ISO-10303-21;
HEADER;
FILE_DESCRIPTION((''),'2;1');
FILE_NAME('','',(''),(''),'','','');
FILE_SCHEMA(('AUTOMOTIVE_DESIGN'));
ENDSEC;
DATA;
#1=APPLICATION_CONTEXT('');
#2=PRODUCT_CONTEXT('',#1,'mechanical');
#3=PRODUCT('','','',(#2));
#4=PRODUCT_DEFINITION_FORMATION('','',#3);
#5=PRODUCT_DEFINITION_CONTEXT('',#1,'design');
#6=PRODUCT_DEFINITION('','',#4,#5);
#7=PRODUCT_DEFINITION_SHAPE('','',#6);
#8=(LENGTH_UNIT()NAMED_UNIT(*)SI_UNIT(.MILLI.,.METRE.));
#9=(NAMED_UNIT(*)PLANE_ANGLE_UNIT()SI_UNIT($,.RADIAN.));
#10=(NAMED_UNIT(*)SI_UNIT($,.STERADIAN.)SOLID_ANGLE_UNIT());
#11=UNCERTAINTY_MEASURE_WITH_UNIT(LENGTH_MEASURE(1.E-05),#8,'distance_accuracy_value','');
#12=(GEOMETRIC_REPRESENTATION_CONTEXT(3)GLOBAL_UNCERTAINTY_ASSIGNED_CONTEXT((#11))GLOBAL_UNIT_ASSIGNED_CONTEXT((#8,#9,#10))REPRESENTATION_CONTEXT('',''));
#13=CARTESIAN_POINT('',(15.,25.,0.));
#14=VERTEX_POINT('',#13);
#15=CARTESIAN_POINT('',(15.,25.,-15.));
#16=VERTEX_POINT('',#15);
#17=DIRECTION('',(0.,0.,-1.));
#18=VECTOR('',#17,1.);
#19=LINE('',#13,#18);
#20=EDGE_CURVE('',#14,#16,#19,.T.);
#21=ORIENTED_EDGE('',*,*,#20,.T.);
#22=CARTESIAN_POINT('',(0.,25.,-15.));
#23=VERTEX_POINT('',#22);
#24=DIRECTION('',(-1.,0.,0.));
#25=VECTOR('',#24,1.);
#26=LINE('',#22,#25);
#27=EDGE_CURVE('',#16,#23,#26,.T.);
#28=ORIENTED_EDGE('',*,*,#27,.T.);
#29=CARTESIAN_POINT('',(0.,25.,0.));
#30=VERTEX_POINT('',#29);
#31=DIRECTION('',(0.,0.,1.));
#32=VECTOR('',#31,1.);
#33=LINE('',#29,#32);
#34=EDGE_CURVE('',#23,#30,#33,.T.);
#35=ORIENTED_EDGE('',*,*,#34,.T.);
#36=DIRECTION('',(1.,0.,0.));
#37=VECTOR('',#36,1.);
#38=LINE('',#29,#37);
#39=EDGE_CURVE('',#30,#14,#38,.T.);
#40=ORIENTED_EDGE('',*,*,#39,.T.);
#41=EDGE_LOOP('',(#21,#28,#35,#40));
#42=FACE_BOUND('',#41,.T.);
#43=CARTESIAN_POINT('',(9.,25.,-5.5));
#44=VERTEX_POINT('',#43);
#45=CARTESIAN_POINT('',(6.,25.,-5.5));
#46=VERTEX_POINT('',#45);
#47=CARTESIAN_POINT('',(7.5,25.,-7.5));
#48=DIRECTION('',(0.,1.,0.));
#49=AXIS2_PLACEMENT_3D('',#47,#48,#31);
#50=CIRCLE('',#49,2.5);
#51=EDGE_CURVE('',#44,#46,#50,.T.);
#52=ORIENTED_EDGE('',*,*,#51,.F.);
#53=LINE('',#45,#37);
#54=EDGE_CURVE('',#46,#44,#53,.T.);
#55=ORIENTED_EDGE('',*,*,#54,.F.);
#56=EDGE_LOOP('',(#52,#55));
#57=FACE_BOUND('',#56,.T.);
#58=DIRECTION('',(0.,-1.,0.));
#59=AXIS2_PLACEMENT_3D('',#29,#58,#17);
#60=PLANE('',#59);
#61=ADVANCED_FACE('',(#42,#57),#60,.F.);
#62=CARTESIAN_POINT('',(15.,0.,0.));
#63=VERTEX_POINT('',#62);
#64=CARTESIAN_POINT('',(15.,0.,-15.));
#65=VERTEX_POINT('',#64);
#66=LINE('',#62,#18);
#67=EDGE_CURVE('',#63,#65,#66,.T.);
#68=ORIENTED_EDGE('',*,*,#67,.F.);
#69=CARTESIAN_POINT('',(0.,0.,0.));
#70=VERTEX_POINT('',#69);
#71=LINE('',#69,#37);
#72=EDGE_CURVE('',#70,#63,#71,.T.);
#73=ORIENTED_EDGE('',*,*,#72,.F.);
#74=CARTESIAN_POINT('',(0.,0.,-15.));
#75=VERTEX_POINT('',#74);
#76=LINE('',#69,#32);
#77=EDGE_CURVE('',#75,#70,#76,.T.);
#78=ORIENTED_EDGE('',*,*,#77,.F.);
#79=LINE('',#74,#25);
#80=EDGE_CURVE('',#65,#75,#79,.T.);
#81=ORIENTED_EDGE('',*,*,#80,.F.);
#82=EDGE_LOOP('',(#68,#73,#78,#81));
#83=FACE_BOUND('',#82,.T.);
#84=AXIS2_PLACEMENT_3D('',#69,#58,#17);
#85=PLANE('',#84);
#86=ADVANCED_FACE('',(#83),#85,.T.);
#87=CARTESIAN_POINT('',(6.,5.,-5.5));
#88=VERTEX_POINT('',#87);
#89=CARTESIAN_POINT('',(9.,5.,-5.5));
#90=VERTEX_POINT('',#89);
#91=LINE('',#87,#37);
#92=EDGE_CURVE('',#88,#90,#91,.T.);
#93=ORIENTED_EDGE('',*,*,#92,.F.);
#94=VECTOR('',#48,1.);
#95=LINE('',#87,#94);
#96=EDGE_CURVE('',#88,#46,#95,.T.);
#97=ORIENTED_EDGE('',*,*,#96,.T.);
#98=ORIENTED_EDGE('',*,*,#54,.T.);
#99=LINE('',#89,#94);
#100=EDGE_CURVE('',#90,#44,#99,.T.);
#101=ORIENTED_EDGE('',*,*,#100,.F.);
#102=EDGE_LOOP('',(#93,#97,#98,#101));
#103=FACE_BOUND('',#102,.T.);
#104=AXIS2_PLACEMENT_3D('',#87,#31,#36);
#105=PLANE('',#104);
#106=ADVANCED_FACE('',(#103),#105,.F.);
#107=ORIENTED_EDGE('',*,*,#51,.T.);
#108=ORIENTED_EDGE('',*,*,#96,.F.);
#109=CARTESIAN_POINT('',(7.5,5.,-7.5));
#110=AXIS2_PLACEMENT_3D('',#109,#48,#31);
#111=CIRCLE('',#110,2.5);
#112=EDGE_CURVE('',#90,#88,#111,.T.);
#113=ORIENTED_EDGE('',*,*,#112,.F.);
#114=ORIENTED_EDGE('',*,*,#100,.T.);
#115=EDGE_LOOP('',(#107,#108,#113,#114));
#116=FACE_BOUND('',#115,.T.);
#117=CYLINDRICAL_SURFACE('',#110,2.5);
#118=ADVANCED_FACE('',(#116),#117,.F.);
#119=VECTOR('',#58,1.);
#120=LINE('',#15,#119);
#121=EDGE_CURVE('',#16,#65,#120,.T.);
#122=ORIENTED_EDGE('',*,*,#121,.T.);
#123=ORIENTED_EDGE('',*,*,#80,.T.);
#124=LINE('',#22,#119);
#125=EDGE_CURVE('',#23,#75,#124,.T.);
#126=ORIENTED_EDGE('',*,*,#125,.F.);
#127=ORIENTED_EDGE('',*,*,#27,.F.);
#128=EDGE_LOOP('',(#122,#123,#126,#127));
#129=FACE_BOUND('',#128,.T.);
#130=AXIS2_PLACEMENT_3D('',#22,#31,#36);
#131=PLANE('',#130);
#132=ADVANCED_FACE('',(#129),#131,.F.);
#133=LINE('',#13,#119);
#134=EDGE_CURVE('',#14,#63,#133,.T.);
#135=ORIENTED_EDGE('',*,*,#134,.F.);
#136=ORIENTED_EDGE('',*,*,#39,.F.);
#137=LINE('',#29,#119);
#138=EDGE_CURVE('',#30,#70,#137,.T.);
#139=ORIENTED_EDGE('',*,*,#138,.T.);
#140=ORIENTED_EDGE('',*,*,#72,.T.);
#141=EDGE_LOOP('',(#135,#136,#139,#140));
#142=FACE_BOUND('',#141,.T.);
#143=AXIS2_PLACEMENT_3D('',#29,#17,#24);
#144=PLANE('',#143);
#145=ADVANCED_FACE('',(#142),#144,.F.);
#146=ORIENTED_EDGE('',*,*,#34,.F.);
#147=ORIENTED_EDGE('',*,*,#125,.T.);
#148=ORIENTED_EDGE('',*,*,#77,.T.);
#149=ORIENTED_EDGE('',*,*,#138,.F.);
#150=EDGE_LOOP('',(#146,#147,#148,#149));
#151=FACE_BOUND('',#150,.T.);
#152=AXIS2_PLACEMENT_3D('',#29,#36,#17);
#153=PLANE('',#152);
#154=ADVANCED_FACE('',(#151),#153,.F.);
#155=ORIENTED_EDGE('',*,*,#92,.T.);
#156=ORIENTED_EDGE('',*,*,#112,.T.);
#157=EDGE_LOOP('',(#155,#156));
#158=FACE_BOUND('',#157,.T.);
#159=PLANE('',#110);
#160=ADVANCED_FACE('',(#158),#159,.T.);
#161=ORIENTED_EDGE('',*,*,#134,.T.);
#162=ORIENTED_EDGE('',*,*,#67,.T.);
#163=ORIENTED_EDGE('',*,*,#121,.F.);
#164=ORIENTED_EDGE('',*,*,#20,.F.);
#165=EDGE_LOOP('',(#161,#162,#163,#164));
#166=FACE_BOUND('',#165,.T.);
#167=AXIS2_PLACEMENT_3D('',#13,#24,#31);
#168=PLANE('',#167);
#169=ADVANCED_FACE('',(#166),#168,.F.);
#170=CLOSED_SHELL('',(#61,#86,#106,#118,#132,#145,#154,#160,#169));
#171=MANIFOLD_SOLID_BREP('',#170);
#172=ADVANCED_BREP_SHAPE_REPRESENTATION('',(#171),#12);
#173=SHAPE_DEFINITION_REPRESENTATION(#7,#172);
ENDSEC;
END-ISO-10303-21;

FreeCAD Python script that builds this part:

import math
import FreeCAD as App
import Part
import Sketcher

doc = App.newDocument("Part")
body = doc.addObject("PartDesign::Body", "Body")

# Sketch on XZ plane
sketch1 = body.newObject("Sketcher::SketchObject", "Sketch")
sketch1.AttachmentSupport = (doc.getObject("XZ_Plane"), [""])
sketch1.MapMode = "FlatFace"
sketch1.addGeometry(Part.LineSegment(App.Vector(0, -15, 0), App.Vector(0, 0, 0)), False)
sketch1.addGeometry(Part.LineSegment(App.Vector(0, 0, 0), App.Vector(15, 0, 0)), False)
sketch1.addGeometry(Part.LineSegment(App.Vector(15, 0, 0), App.Vector(15, -15, 0)), False)
sketch1.addGeometry(Part.LineSegment(App.Vector(15, -15, 0), App.Vector(0, -15, 0)), False)
sketch1.addConstraint(Sketcher.Constraint("Coincident", 0, 2, 1, 1))
sketch1.addConstraint(Sketcher.Constraint("Coincident", 1, 2, 2, 1))
sketch1.addConstraint(Sketcher.Constraint("Coincident", 2, 2, 3, 1))
sketch1.addConstraint(Sketcher.Constraint("Coincident", 3, 2, 0, 1))
sketch1.addConstraint(Sketcher.Constraint("Vertical", 0))
sketch1.addConstraint(Sketcher.Constraint("Horizontal", 1))
sketch1.addConstraint(Sketcher.Constraint("Vertical", 2))
sketch1.addConstraint(Sketcher.Constraint("Horizontal", 3))
sketch1.addConstraint(Sketcher.Constraint("Coincident", 0, 2, -1, 1))
sketch1.addConstraint(Sketcher.Constraint("Equal", 3, 0))
sketch1.addConstraint(Sketcher.Constraint("DistanceX", 1, 1, 1, 2, 15.0))
pad1 = body.newObject("PartDesign::Pad", "Pad")
pad1.Profile = sketch1
pad1.Length = 25
pad1.Reversed = True

# Sketch on XZ plane
sketch2 = body.newObject("Sketcher::SketchObject", "Sketch001")
sketch2.AttachmentSupport = (doc.getObject("XZ_Plane"), [""])
sketch2.MapMode = "FlatFace"
sketch2.AttachmentOffset = App.Placement(App.Vector(0, 0, -25), App.Rotation())
sketch2.addGeometry(Part.LineSegment(App.Vector(6, -5.5, 0), App.Vector(9, -5.5, 0)), False)
sketch2.addGeometry(Part.ArcOfCircle(Part.Circle(App.Vector(7.5, -7.5, 0), App.Vector(0, 0, 1), 2.5), math.radians(127), math.radians(413)), False)
sketch2.addConstraint(Sketcher.Constraint("Coincident", 0, 1, 1, 1))
sketch2.addConstraint(Sketcher.Constraint("Coincident", 1, 2, 0, 2))
sketch2.addConstraint(Sketcher.Constraint("Horizontal", 0))
sketch2.addConstraint(Sketcher.Constraint("Radius", 1, 2.5))
sketch2.addConstraint(Sketcher.Constraint("DistanceX", 0, 1, 0, 2, 3.0))
sketch2.addConstraint(Sketcher.Constraint("DistanceX", -1, 1, 0, 1, 6.0))
sketch2.addConstraint(Sketcher.Constraint("DistanceY", 1, 3, -1, 1, 7.5))
pocket1 = body.newObject("PartDesign::Pocket", "Pocket")
pocket1.Profile = sketch2
pocket1.Length = 20
pocket1.Reversed = True

doc.recompute()
